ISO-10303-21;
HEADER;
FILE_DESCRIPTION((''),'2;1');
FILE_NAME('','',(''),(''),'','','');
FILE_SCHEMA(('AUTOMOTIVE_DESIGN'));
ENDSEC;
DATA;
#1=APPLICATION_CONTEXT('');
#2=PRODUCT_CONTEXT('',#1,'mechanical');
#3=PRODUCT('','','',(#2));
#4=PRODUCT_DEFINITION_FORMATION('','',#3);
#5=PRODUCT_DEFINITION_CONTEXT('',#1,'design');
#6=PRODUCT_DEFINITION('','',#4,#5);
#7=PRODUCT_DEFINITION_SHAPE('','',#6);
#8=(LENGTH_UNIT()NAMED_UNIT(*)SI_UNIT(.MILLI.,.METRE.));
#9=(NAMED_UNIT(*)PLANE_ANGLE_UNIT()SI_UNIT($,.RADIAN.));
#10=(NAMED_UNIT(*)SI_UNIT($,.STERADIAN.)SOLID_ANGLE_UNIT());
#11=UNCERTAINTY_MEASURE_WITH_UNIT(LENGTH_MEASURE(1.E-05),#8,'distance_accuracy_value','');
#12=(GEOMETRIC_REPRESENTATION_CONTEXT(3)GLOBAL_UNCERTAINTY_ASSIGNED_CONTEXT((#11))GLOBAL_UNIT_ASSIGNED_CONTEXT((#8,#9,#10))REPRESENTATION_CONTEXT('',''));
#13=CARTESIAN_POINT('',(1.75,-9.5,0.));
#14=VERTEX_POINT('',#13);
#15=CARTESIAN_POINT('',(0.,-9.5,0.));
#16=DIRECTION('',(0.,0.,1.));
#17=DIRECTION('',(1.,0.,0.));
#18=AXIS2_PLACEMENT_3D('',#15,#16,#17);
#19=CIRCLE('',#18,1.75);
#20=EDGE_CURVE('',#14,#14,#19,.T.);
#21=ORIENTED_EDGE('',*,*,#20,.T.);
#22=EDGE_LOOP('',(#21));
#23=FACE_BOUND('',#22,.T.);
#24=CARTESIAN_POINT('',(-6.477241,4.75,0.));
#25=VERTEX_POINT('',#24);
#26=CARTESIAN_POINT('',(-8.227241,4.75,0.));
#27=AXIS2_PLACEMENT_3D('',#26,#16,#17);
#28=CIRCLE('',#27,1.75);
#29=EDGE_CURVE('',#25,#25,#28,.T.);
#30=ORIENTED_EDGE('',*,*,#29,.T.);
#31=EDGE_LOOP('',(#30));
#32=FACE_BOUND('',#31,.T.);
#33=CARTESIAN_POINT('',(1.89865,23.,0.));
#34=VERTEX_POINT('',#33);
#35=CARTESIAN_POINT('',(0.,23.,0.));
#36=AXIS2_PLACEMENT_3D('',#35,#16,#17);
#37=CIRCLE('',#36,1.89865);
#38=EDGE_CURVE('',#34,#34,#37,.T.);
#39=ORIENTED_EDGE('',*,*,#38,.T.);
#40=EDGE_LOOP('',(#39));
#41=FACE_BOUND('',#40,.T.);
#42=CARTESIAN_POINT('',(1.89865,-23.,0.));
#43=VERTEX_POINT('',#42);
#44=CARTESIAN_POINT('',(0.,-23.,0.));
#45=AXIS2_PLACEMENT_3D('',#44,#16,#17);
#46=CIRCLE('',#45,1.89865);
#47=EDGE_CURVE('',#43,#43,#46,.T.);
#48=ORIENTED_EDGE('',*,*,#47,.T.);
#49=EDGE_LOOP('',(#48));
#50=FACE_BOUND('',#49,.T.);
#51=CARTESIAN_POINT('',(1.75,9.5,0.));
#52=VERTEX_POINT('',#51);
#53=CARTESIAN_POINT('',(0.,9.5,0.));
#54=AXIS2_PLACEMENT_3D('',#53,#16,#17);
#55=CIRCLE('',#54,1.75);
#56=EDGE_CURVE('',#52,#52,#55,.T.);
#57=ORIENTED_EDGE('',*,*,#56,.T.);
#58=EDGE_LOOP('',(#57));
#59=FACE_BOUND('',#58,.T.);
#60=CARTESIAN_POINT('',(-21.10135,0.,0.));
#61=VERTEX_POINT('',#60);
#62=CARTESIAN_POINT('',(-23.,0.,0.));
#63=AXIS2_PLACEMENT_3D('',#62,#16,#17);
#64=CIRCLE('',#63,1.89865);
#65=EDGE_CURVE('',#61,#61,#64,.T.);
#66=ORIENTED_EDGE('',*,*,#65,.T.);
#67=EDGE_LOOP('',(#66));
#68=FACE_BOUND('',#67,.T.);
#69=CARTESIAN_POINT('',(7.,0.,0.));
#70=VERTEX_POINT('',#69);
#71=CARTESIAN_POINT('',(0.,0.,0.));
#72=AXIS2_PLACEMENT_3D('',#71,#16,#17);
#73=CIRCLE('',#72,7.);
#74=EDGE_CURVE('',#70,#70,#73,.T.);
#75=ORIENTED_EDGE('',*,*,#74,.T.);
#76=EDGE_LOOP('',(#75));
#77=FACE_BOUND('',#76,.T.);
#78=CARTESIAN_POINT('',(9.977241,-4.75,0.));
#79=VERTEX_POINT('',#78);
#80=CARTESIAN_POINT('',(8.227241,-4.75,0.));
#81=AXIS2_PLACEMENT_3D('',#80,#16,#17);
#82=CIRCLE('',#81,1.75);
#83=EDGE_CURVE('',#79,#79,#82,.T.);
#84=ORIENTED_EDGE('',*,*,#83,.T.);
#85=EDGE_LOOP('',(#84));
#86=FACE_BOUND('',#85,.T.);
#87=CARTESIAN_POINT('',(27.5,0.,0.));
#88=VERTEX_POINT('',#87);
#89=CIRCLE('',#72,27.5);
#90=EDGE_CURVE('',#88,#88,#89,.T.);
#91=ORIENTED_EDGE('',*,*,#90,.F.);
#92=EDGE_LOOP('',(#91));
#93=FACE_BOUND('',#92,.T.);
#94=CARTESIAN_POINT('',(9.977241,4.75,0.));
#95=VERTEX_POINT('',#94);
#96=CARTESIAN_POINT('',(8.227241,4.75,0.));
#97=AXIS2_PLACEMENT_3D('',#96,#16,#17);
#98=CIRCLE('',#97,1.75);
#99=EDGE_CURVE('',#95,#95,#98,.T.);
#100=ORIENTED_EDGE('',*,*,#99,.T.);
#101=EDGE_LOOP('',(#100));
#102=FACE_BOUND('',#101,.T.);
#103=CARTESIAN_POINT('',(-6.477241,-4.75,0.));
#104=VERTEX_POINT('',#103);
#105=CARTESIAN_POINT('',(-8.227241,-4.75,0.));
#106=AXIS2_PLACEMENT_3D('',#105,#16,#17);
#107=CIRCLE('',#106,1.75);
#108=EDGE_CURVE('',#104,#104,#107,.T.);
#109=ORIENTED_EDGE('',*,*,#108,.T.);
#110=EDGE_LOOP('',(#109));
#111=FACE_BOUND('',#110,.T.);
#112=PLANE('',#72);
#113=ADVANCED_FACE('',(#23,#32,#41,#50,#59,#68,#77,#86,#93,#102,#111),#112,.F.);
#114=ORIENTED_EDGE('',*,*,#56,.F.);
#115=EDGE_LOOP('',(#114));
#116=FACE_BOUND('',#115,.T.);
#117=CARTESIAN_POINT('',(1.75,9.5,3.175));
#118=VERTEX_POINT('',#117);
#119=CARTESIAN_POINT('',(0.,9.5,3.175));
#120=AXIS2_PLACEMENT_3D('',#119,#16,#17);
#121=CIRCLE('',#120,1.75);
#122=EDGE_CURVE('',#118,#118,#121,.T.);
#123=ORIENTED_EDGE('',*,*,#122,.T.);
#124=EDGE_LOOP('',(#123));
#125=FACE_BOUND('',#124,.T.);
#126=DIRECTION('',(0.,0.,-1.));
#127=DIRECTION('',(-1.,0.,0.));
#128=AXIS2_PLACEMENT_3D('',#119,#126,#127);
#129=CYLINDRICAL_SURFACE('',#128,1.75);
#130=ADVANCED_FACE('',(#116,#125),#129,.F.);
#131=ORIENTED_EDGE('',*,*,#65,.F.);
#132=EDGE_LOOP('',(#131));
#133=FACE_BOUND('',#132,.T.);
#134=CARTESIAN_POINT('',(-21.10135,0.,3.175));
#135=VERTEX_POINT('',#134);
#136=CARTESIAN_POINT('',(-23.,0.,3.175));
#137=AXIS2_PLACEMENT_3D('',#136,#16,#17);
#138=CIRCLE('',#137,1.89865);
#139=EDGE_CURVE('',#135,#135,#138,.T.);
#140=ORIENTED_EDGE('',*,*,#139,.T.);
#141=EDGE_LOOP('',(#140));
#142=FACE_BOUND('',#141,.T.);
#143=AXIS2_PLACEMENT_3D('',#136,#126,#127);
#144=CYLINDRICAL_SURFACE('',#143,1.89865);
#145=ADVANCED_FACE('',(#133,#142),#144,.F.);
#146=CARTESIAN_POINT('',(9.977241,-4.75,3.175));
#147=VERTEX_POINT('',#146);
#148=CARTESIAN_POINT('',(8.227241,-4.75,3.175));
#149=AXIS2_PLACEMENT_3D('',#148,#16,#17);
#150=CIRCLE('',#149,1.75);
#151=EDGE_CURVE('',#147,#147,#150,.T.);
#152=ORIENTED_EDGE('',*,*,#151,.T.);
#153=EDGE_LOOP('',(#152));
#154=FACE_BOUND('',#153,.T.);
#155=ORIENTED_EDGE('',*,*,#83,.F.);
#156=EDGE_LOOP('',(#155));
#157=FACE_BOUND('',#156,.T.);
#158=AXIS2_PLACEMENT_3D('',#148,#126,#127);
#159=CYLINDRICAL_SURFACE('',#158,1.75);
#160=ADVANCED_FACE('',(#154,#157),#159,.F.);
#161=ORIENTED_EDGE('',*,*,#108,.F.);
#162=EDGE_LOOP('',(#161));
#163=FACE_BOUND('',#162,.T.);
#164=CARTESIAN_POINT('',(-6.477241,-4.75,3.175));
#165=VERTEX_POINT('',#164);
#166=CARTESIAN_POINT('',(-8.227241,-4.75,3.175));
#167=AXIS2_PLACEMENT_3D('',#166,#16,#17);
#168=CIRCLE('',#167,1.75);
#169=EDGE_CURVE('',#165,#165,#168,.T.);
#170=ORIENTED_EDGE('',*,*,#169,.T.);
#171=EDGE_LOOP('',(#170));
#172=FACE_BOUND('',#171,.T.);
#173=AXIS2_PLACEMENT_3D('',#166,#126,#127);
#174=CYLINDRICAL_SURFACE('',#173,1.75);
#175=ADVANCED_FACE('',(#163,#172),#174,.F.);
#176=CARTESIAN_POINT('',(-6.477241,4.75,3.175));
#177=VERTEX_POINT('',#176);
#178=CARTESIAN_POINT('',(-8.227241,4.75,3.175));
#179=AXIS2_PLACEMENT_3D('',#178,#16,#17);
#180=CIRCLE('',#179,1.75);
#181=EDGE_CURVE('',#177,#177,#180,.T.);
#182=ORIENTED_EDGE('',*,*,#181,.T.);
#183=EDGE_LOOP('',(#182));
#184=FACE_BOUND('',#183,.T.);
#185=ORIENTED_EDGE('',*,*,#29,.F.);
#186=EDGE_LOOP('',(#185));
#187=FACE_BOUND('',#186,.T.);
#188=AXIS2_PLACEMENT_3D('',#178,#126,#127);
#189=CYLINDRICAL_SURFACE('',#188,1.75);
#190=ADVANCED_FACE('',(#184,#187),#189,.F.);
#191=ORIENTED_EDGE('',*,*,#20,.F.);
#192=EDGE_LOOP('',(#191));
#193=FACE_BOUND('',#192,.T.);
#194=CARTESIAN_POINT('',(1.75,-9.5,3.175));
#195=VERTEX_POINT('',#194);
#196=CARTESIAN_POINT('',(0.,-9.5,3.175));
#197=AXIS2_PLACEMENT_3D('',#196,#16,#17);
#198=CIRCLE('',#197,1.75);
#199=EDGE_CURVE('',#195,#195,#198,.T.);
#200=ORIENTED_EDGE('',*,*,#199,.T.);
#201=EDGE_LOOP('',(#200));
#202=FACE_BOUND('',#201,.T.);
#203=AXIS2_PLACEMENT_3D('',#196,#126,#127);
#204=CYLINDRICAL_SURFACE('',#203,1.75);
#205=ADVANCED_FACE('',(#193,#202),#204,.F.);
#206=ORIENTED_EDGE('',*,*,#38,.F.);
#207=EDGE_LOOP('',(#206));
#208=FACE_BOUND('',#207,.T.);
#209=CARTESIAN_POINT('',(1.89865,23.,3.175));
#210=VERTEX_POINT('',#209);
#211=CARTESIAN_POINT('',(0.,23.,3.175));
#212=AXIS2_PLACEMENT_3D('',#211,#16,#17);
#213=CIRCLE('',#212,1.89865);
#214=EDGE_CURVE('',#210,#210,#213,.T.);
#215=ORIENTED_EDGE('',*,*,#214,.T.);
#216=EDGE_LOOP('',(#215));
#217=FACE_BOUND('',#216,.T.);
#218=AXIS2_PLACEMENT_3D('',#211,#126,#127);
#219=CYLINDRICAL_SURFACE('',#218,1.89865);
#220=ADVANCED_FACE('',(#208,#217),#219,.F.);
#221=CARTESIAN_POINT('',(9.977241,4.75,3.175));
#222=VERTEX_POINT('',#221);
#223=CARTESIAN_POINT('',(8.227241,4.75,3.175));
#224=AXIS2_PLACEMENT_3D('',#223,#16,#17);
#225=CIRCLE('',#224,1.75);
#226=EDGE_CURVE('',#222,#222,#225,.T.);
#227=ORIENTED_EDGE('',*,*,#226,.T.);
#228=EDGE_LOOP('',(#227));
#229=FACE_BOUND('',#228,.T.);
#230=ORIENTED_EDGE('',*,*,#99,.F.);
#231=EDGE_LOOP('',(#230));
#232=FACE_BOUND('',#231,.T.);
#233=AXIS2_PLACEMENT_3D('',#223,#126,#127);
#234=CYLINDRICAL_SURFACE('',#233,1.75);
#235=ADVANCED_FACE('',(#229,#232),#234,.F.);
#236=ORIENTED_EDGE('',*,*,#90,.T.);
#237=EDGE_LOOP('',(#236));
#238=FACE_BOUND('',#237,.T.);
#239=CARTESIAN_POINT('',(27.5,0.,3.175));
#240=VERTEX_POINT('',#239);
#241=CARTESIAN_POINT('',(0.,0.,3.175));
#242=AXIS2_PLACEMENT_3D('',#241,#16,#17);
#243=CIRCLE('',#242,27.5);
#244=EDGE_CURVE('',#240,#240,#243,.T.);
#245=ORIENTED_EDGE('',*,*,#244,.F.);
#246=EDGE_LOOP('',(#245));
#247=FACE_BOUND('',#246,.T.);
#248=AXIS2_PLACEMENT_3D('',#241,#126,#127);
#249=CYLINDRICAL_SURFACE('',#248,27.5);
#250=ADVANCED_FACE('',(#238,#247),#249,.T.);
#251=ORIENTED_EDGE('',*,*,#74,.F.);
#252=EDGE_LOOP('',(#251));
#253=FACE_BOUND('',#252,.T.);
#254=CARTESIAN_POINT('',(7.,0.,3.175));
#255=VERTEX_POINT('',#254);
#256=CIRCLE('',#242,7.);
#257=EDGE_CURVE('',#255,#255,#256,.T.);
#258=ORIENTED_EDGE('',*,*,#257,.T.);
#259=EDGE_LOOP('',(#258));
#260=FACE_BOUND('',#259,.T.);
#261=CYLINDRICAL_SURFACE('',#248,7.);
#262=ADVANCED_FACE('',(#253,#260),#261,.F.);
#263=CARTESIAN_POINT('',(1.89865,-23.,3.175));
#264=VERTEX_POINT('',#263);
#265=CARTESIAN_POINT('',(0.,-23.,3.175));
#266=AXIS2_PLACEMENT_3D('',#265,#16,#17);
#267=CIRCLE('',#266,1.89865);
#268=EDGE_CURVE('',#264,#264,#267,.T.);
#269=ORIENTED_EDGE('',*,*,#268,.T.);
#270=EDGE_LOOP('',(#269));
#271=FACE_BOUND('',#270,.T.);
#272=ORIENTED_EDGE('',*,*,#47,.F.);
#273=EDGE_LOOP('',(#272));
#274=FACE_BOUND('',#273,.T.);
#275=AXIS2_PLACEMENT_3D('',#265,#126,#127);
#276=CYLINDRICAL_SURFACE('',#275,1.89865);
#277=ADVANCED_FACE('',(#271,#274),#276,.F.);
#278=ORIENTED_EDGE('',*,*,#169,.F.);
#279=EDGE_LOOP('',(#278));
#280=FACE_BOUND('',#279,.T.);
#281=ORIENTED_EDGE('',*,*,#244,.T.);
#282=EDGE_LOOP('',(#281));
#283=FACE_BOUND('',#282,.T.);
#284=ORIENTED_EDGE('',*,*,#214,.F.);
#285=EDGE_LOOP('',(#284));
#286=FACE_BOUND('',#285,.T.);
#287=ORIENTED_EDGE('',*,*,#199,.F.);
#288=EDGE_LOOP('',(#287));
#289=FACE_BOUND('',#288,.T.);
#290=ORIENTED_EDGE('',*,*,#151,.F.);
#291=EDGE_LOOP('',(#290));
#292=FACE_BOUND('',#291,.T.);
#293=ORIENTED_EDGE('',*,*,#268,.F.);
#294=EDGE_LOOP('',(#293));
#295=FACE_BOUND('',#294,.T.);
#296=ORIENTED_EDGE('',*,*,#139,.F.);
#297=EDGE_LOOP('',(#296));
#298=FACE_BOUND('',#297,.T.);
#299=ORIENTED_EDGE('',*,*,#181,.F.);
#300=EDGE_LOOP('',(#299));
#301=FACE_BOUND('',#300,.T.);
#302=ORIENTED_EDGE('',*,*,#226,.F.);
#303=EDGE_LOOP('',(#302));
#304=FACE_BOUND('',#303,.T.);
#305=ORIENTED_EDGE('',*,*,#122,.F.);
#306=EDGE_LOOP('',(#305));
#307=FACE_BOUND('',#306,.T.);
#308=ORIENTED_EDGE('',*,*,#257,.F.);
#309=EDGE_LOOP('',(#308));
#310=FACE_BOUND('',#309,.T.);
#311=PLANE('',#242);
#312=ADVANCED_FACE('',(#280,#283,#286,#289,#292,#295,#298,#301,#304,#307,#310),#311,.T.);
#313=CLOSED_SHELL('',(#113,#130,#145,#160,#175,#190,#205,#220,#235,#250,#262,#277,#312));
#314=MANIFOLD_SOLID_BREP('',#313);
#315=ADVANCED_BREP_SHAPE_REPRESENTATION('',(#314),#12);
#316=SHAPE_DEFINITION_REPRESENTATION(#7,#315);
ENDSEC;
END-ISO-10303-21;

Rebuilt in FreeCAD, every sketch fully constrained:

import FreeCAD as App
import Part
import Sketcher

V = App.Vector

doc = App.newDocument("Part")
body = doc.addObject("PartDesign::Body", "Body")

# Sketch on XY plane
sketch1 = doc.addObject("Sketcher::SketchObject", "Sketch")
body.addObject(sketch1)
sketch1.AttachmentSupport = (doc.XY_Plane, [""])
sketch1.MapMode = "FlatFace"
sketch1.addGeometry(Part.Circle(V(0, 0, 0), V(0, 0, 1), 27.5), False)
sketch1.addGeometry(Part.Circle(V(-8.2, -4.8, 0), V(0, 0, 1), 1.8), False)
sketch1.addGeometry(Part.Circle(V(0, -23, 0), V(0, 0, 1), 1.9), False)
sketch1.addGeometry(Part.Circle(V(0, -9.5, 0), V(0, 0, 1), 1.8), False)
sketch1.addGeometry(Part.Circle(V(8.2, -4.8, 0), V(0, 0, 1), 1.8), False)
sketch1.addGeometry(Part.Circle(V(-23, 0, 0), V(0, 0, 1), 1.9), False)
sketch1.addGeometry(Part.Circle(V(-8.2, 4.8, 0), V(0, 0, 1), 1.8), False)
sketch1.addGeometry(Part.Circle(V(0, 0, 0), V(0, 0, 1), 7), False)
sketch1.addGeometry(Part.Circle(V(0, 9.5, 0), V(0, 0, 1), 1.8), False)
sketch1.addGeometry(Part.Circle(V(8.2, 4.8, 0), V(0, 0, 1), 1.8), False)
sketch1.addGeometry(Part.Circle(V(0, 23, 0), V(0, 0, 1), 1.9), False)
sketch1.addConstraint(Sketcher.Constraint("Coincident", 0, 3, -1, 1))
sketch1.addConstraint(Sketcher.Constraint("Coincident", 7, 3, -1, 1))
sketch1.addConstraint(Sketcher.Constraint("Equal", 1, 3))
sketch1.addConstraint(Sketcher.Constraint("Equal", 3, 4))
sketch1.addConstraint(Sketcher.Constraint("Equal", 2, 5))
sketch1.addConstraint(Sketcher.Constraint("Equal", 4, 6))
sketch1.addConstraint(Sketcher.Constraint("Equal", 6, 8))
sketch1.addConstraint(Sketcher.Constraint("Equal", 8, 9))
sketch1.addConstraint(Sketcher.Constraint("Equal", 5, 10))
sketch1.addConstraint(Sketcher.Constraint("Symmetric", 4, 3, 6, 3, -1, 1))
sketch1.addConstraint(Sketcher.Constraint("Symmetric", 3, 3, 8, 3, -1, 1))
sketch1.addConstraint(Sketcher.Constraint("Symmetric", 1, 3, 9, 3, -1, 1))
sketch1.addConstraint(Sketcher.Constraint("Symmetric", 2, 3, 10, 3, -1, 1))
sketch1.addConstraint(Sketcher.Constraint("Symmetric", 1, 3, 4, 3, -2))
sketch1.addConstraint(Sketcher.Constraint("PointOnObject", 2, 3, -2))
sketch1.addConstraint(Sketcher.Constraint("PointOnObject", 3, 3, -2))
sketch1.addConstraint(Sketcher.Constraint("PointOnObject", 5, 3, -1))
sketch1.addConstraint(Sketcher.Constraint("Diameter", 0, 55.0))
sketch1.addConstraint(Sketcher.Constraint("Diameter", 7, 14.0))
sketch1.addConstraint(Sketcher.Constraint("Diameter", 1, 3.5))
sketch1.addConstraint(Sketcher.Constraint("DistanceY", 2, 3, -1, 1, 23.0))
sketch1.addConstraint(Sketcher.Constraint("DistanceX", 5, 3, -1, 1, 23.0))
sketch1.addConstraint(Sketcher.Constraint("Diameter", 2, 3.7973))
sketch1.addConstraint(Sketcher.Constraint("DistanceY", 3, 3, -1, 1, 9.5))
sketch1.addConstraint(Sketcher.Constraint("DistanceY", 1, 3, 6, 3, 9.5))
sketch1.addConstraint(Sketcher.Constraint("DistanceX", 1, 3, -1, 1, 8.227241))
pad1 = doc.addObject("PartDesign::Pad", "Pad")
body.addObject(pad1)
pad1.Profile = sketch1
pad1.Length = 3.175

doc.recompute()
